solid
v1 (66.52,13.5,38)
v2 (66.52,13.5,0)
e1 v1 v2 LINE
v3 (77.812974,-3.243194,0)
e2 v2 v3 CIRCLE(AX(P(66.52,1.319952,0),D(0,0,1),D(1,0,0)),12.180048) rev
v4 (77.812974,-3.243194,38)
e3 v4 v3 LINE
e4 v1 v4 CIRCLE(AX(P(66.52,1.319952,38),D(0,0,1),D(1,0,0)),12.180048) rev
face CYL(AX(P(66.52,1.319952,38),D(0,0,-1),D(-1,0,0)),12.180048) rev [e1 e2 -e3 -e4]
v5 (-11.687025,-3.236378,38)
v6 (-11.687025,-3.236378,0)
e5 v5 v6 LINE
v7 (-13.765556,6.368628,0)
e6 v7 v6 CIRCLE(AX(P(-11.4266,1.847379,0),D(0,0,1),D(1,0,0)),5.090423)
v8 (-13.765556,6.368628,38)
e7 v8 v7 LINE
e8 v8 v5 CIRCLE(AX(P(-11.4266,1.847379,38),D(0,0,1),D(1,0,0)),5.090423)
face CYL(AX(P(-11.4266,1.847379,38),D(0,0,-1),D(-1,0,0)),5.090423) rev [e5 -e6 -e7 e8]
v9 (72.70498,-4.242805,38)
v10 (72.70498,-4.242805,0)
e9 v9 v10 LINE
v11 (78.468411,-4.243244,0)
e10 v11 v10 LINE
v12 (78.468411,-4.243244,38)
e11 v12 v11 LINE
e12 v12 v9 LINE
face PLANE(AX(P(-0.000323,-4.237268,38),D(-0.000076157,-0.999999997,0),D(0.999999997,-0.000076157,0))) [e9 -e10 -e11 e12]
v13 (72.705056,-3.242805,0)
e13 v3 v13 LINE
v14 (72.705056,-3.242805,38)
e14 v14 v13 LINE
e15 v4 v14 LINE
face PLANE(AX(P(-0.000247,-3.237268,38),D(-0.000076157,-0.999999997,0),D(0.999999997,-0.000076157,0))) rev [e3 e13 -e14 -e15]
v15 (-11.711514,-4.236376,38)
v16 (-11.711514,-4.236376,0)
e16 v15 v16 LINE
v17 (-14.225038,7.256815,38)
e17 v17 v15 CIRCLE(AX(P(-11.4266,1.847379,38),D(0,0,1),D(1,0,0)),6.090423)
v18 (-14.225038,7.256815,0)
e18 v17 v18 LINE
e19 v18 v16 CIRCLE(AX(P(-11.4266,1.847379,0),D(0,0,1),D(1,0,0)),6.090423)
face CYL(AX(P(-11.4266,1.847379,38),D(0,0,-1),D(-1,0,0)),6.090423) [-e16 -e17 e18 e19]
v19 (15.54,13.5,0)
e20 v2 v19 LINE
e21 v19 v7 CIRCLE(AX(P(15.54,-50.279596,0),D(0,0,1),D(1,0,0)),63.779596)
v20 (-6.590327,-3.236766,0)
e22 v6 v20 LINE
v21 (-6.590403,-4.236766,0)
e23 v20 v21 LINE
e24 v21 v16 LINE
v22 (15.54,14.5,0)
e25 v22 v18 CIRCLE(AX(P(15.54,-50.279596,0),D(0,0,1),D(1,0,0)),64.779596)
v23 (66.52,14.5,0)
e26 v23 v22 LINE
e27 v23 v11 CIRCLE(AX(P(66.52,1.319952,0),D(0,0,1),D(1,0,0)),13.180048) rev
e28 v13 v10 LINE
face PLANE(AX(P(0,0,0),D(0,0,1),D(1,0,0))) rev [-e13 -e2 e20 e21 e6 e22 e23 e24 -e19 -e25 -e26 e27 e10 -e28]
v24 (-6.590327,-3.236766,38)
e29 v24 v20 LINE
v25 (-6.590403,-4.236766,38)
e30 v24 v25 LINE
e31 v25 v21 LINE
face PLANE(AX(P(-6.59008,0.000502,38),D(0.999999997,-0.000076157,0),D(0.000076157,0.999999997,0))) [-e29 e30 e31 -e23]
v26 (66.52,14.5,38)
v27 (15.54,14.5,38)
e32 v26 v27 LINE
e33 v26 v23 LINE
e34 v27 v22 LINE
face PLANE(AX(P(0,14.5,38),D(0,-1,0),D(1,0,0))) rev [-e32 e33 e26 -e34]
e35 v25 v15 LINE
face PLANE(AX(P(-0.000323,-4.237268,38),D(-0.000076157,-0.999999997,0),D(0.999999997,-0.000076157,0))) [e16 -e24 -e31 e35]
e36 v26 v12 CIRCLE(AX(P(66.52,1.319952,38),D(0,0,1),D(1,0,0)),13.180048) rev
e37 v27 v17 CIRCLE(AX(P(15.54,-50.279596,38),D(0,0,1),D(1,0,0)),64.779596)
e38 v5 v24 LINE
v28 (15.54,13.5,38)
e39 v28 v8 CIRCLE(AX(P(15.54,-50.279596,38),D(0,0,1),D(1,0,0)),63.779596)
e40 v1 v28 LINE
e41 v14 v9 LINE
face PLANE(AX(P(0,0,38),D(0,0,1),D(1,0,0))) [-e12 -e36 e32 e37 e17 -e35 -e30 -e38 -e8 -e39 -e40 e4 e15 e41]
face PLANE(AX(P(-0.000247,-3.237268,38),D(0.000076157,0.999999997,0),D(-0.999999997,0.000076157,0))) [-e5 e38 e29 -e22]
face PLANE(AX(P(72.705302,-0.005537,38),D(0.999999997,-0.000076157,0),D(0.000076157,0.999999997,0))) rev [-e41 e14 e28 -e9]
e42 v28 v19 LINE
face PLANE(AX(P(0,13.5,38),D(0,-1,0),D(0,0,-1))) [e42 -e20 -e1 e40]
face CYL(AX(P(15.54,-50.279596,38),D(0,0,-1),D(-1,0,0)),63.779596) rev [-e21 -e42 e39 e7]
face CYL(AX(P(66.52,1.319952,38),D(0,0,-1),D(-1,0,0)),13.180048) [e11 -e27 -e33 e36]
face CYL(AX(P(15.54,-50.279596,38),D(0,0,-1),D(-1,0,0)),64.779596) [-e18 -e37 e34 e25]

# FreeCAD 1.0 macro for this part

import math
import FreeCAD as App
import Part
import Sketcher
Q = App.Units.Quantity

doc = App.newDocument("Part")
body = doc.addObject("PartDesign::Body", "Body")

# Sketch on XY plane
sketch1 = doc.addObject("Sketcher::SketchObject", "Sketch")
body.addObject(sketch1)
sketch1.AttachmentSupport = (doc.XY_Plane, [""])
sketch1.MapMode = "FlatFace"
sketch1.addGeometry(Part.LineSegment(App.Vector(66.52, 14.5, 0), App.Vector(15.54, 14.5, 0)), False)
sketch1.addGeometry(Part.ArcOfCircle(Part.Circle(App.Vector(15.54, -50.279596, 0), App.Vector(0, 0, 1), 64.779596), math.radians(90), math.radians(117.353666)), False)
sketch1.addGeometry(Part.ArcOfCircle(Part.Circle(App.Vector(-11.4266, 1.847379, 0), App.Vector(0, 0, 1), 6.090423), math.radians(117.353666), math.radians(267.318684)), False)
sketch1.addGeometry(Part.LineSegment(App.Vector(-11.711514, -4.236376, 0), App.Vector(-6.590403, -4.236766, 0)), False)
sketch1.addGeometry(Part.LineSegment(App.Vector(-6.590403, -4.236766, 0), App.Vector(-6.590327, -3.236766, 0)), False)
sketch1.addGeometry(Part.LineSegment(App.Vector(-6.590327, -3.236766, 0), App.Vector(-11.687025, -3.236378, 0)), False)
sketch1.addGeometry(Part.ArcOfCircle(Part.Circle(App.Vector(-11.4266, 1.847379, 0), App.Vector(0, 0, 1), 5.090423), math.radians(117.353666), math.radians(267.067474)), False)
sketch1.addGeometry(Part.ArcOfCircle(Part.Circle(App.Vector(15.54, -50.279596, 0), App.Vector(0, 0, 1), 63.779596), math.radians(90), math.radians(117.353666)), False)
sketch1.addGeometry(Part.LineSegment(App.Vector(15.54, 13.5, 0), App.Vector(66.52, 13.5, 0)), False)
sketch1.addGeometry(Part.ArcOfCircle(Part.Circle(App.Vector(66.52, 1.319952, 0), App.Vector(0, 0, 1), 12.180048), math.radians(-22.002128), math.radians(90)), False)
sketch1.addGeometry(Part.LineSegment(App.Vector(77.812974, -3.243194, 0), App.Vector(72.705056, -3.242805, 0)), False)
sketch1.addGeometry(Part.LineSegment(App.Vector(72.705056, -3.242805, 0), App.Vector(72.70498, -4.242805, 0)), False)
sketch1.addGeometry(Part.LineSegment(App.Vector(72.70498, -4.242805, 0), App.Vector(78.468411, -4.243244, 0)), False)
sketch1.addGeometry(Part.ArcOfCircle(Part.Circle(App.Vector(66.52, 1.319952, 0), App.Vector(0, 0, 1), 13.180048), math.radians(-24.966748), math.radians(90)), False)
sketch1.addConstraint(Sketcher.Constraint("Tangent", 0, 2, 1, 1))
sketch1.addConstraint(Sketcher.Constraint("Tangent", 1, 2, 2, 1))
sketch1.addConstraint(Sketcher.Constraint("Coincident", 2, 2, 3, 1))
sketch1.addConstraint(Sketcher.Constraint("Coincident", 3, 2, 4, 1))
sketch1.addConstraint(Sketcher.Constraint("Coincident", 4, 2, 5, 1))
sketch1.addConstraint(Sketcher.Constraint("Coincident", 5, 2, 6, 2))
sketch1.addConstraint(Sketcher.Constraint("Tangent", 6, 1, 7, 2))
sketch1.addConstraint(Sketcher.Constraint("Tangent", 7, 1, 8, 1))
sketch1.addConstraint(Sketcher.Constraint("Tangent", 8, 2, 9, 2))
sketch1.addConstraint(Sketcher.Constraint("Coincident", 9, 1, 10, 1))
sketch1.addConstraint(Sketcher.Constraint("Coincident", 10, 2, 11, 1))
sketch1.addConstraint(Sketcher.Constraint("Coincident", 11, 2, 12, 1))
sketch1.addConstraint(Sketcher.Constraint("Coincident", 12, 2, 13, 1))
sketch1.addConstraint(Sketcher.Constraint("Tangent", 13, 2, 0, 1))
sketch1.addConstraint(Sketcher.Constraint("Horizontal", 0))
sketch1.addConstraint(Sketcher.Constraint("Horizontal", 8))
sketch1.addConstraint(Sketcher.Constraint("Coincident", 6, 3, 2, 3))
sketch1.addConstraint(Sketcher.Constraint("Coincident", 7, 3, 1, 3))
sketch1.addConstraint(Sketcher.Constraint("Coincident", 13, 3, 9, 3))
sketch1.addConstraint(Sketcher.Constraint("Perpendicular", 3, 4))
sketch1.addConstraint(Sketcher.Constraint("Perpendicular", 4, 5))
sketch1.addConstraint(Sketcher.Constraint("Parallel", 5, 10))
sketch1.addConstraint(Sketcher.Constraint("Perpendicular", 10, 11))
sketch1.addConstraint(Sketcher.Constraint("Perpendicular", 11, 12))
sketch1.addConstraint(Sketcher.Constraint("Equal", 4, 11))
sketch1.addConstraint(Sketcher.Constraint("Distance", 4, Q("1 mm")))
sketch1.addConstraint(Sketcher.Constraint("DistanceY", 7, 1, 0, 2, Q("1 mm")))
sketch1.addConstraint(Sketcher.Constraint("DistanceX", 0, 2, 0, 1, Q("50.98 mm")))
sketch1.addConstraint(Sketcher.Constraint("DistanceY", -1, 1, 0, 2, Q("14.5 mm")))
sketch1.addConstraint(Sketcher.Constraint("DistanceX", -1, 1, 1, 3, Q("15.54 mm")))
sketch1.addConstraint(Sketcher.Constraint("Radius", 9, Q("12.180048 mm")))
sketch1.addConstraint(Sketcher.Constraint("Radius", 1, Q("64.779596 mm")))
sketch1.addConstraint(Sketcher.Constraint("Radius", 2, Q("6.090423 mm")))
sketch1.addConstraint(Sketcher.Constraint("Distance", 5, Q("5.096698 mm")))
sketch1.addConstraint(Sketcher.Constraint("DistanceX", 2, 3, -1, 1, Q("11.4266 mm")))
sketch1.addConstraint(Sketcher.Constraint("Distance", 3, Q("5.121111 mm")))
sketch1.addConstraint(Sketcher.Constraint("Distance", 10, Q("5.107919 mm")))
sketch1.addConstraint(Sketcher.Constraint("Distance", 12, Q("5.763431 mm")))
sketch1.addConstraint(Sketcher.Constraint("DistanceX", -1, 1, 11, 2, Q("72.70498 mm")))
pad1 = doc.addObject("PartDesign::Pad", "Pad")
body.addObject(pad1)
pad1.Profile = sketch1
pad1.Length = 38

doc.recompute()
